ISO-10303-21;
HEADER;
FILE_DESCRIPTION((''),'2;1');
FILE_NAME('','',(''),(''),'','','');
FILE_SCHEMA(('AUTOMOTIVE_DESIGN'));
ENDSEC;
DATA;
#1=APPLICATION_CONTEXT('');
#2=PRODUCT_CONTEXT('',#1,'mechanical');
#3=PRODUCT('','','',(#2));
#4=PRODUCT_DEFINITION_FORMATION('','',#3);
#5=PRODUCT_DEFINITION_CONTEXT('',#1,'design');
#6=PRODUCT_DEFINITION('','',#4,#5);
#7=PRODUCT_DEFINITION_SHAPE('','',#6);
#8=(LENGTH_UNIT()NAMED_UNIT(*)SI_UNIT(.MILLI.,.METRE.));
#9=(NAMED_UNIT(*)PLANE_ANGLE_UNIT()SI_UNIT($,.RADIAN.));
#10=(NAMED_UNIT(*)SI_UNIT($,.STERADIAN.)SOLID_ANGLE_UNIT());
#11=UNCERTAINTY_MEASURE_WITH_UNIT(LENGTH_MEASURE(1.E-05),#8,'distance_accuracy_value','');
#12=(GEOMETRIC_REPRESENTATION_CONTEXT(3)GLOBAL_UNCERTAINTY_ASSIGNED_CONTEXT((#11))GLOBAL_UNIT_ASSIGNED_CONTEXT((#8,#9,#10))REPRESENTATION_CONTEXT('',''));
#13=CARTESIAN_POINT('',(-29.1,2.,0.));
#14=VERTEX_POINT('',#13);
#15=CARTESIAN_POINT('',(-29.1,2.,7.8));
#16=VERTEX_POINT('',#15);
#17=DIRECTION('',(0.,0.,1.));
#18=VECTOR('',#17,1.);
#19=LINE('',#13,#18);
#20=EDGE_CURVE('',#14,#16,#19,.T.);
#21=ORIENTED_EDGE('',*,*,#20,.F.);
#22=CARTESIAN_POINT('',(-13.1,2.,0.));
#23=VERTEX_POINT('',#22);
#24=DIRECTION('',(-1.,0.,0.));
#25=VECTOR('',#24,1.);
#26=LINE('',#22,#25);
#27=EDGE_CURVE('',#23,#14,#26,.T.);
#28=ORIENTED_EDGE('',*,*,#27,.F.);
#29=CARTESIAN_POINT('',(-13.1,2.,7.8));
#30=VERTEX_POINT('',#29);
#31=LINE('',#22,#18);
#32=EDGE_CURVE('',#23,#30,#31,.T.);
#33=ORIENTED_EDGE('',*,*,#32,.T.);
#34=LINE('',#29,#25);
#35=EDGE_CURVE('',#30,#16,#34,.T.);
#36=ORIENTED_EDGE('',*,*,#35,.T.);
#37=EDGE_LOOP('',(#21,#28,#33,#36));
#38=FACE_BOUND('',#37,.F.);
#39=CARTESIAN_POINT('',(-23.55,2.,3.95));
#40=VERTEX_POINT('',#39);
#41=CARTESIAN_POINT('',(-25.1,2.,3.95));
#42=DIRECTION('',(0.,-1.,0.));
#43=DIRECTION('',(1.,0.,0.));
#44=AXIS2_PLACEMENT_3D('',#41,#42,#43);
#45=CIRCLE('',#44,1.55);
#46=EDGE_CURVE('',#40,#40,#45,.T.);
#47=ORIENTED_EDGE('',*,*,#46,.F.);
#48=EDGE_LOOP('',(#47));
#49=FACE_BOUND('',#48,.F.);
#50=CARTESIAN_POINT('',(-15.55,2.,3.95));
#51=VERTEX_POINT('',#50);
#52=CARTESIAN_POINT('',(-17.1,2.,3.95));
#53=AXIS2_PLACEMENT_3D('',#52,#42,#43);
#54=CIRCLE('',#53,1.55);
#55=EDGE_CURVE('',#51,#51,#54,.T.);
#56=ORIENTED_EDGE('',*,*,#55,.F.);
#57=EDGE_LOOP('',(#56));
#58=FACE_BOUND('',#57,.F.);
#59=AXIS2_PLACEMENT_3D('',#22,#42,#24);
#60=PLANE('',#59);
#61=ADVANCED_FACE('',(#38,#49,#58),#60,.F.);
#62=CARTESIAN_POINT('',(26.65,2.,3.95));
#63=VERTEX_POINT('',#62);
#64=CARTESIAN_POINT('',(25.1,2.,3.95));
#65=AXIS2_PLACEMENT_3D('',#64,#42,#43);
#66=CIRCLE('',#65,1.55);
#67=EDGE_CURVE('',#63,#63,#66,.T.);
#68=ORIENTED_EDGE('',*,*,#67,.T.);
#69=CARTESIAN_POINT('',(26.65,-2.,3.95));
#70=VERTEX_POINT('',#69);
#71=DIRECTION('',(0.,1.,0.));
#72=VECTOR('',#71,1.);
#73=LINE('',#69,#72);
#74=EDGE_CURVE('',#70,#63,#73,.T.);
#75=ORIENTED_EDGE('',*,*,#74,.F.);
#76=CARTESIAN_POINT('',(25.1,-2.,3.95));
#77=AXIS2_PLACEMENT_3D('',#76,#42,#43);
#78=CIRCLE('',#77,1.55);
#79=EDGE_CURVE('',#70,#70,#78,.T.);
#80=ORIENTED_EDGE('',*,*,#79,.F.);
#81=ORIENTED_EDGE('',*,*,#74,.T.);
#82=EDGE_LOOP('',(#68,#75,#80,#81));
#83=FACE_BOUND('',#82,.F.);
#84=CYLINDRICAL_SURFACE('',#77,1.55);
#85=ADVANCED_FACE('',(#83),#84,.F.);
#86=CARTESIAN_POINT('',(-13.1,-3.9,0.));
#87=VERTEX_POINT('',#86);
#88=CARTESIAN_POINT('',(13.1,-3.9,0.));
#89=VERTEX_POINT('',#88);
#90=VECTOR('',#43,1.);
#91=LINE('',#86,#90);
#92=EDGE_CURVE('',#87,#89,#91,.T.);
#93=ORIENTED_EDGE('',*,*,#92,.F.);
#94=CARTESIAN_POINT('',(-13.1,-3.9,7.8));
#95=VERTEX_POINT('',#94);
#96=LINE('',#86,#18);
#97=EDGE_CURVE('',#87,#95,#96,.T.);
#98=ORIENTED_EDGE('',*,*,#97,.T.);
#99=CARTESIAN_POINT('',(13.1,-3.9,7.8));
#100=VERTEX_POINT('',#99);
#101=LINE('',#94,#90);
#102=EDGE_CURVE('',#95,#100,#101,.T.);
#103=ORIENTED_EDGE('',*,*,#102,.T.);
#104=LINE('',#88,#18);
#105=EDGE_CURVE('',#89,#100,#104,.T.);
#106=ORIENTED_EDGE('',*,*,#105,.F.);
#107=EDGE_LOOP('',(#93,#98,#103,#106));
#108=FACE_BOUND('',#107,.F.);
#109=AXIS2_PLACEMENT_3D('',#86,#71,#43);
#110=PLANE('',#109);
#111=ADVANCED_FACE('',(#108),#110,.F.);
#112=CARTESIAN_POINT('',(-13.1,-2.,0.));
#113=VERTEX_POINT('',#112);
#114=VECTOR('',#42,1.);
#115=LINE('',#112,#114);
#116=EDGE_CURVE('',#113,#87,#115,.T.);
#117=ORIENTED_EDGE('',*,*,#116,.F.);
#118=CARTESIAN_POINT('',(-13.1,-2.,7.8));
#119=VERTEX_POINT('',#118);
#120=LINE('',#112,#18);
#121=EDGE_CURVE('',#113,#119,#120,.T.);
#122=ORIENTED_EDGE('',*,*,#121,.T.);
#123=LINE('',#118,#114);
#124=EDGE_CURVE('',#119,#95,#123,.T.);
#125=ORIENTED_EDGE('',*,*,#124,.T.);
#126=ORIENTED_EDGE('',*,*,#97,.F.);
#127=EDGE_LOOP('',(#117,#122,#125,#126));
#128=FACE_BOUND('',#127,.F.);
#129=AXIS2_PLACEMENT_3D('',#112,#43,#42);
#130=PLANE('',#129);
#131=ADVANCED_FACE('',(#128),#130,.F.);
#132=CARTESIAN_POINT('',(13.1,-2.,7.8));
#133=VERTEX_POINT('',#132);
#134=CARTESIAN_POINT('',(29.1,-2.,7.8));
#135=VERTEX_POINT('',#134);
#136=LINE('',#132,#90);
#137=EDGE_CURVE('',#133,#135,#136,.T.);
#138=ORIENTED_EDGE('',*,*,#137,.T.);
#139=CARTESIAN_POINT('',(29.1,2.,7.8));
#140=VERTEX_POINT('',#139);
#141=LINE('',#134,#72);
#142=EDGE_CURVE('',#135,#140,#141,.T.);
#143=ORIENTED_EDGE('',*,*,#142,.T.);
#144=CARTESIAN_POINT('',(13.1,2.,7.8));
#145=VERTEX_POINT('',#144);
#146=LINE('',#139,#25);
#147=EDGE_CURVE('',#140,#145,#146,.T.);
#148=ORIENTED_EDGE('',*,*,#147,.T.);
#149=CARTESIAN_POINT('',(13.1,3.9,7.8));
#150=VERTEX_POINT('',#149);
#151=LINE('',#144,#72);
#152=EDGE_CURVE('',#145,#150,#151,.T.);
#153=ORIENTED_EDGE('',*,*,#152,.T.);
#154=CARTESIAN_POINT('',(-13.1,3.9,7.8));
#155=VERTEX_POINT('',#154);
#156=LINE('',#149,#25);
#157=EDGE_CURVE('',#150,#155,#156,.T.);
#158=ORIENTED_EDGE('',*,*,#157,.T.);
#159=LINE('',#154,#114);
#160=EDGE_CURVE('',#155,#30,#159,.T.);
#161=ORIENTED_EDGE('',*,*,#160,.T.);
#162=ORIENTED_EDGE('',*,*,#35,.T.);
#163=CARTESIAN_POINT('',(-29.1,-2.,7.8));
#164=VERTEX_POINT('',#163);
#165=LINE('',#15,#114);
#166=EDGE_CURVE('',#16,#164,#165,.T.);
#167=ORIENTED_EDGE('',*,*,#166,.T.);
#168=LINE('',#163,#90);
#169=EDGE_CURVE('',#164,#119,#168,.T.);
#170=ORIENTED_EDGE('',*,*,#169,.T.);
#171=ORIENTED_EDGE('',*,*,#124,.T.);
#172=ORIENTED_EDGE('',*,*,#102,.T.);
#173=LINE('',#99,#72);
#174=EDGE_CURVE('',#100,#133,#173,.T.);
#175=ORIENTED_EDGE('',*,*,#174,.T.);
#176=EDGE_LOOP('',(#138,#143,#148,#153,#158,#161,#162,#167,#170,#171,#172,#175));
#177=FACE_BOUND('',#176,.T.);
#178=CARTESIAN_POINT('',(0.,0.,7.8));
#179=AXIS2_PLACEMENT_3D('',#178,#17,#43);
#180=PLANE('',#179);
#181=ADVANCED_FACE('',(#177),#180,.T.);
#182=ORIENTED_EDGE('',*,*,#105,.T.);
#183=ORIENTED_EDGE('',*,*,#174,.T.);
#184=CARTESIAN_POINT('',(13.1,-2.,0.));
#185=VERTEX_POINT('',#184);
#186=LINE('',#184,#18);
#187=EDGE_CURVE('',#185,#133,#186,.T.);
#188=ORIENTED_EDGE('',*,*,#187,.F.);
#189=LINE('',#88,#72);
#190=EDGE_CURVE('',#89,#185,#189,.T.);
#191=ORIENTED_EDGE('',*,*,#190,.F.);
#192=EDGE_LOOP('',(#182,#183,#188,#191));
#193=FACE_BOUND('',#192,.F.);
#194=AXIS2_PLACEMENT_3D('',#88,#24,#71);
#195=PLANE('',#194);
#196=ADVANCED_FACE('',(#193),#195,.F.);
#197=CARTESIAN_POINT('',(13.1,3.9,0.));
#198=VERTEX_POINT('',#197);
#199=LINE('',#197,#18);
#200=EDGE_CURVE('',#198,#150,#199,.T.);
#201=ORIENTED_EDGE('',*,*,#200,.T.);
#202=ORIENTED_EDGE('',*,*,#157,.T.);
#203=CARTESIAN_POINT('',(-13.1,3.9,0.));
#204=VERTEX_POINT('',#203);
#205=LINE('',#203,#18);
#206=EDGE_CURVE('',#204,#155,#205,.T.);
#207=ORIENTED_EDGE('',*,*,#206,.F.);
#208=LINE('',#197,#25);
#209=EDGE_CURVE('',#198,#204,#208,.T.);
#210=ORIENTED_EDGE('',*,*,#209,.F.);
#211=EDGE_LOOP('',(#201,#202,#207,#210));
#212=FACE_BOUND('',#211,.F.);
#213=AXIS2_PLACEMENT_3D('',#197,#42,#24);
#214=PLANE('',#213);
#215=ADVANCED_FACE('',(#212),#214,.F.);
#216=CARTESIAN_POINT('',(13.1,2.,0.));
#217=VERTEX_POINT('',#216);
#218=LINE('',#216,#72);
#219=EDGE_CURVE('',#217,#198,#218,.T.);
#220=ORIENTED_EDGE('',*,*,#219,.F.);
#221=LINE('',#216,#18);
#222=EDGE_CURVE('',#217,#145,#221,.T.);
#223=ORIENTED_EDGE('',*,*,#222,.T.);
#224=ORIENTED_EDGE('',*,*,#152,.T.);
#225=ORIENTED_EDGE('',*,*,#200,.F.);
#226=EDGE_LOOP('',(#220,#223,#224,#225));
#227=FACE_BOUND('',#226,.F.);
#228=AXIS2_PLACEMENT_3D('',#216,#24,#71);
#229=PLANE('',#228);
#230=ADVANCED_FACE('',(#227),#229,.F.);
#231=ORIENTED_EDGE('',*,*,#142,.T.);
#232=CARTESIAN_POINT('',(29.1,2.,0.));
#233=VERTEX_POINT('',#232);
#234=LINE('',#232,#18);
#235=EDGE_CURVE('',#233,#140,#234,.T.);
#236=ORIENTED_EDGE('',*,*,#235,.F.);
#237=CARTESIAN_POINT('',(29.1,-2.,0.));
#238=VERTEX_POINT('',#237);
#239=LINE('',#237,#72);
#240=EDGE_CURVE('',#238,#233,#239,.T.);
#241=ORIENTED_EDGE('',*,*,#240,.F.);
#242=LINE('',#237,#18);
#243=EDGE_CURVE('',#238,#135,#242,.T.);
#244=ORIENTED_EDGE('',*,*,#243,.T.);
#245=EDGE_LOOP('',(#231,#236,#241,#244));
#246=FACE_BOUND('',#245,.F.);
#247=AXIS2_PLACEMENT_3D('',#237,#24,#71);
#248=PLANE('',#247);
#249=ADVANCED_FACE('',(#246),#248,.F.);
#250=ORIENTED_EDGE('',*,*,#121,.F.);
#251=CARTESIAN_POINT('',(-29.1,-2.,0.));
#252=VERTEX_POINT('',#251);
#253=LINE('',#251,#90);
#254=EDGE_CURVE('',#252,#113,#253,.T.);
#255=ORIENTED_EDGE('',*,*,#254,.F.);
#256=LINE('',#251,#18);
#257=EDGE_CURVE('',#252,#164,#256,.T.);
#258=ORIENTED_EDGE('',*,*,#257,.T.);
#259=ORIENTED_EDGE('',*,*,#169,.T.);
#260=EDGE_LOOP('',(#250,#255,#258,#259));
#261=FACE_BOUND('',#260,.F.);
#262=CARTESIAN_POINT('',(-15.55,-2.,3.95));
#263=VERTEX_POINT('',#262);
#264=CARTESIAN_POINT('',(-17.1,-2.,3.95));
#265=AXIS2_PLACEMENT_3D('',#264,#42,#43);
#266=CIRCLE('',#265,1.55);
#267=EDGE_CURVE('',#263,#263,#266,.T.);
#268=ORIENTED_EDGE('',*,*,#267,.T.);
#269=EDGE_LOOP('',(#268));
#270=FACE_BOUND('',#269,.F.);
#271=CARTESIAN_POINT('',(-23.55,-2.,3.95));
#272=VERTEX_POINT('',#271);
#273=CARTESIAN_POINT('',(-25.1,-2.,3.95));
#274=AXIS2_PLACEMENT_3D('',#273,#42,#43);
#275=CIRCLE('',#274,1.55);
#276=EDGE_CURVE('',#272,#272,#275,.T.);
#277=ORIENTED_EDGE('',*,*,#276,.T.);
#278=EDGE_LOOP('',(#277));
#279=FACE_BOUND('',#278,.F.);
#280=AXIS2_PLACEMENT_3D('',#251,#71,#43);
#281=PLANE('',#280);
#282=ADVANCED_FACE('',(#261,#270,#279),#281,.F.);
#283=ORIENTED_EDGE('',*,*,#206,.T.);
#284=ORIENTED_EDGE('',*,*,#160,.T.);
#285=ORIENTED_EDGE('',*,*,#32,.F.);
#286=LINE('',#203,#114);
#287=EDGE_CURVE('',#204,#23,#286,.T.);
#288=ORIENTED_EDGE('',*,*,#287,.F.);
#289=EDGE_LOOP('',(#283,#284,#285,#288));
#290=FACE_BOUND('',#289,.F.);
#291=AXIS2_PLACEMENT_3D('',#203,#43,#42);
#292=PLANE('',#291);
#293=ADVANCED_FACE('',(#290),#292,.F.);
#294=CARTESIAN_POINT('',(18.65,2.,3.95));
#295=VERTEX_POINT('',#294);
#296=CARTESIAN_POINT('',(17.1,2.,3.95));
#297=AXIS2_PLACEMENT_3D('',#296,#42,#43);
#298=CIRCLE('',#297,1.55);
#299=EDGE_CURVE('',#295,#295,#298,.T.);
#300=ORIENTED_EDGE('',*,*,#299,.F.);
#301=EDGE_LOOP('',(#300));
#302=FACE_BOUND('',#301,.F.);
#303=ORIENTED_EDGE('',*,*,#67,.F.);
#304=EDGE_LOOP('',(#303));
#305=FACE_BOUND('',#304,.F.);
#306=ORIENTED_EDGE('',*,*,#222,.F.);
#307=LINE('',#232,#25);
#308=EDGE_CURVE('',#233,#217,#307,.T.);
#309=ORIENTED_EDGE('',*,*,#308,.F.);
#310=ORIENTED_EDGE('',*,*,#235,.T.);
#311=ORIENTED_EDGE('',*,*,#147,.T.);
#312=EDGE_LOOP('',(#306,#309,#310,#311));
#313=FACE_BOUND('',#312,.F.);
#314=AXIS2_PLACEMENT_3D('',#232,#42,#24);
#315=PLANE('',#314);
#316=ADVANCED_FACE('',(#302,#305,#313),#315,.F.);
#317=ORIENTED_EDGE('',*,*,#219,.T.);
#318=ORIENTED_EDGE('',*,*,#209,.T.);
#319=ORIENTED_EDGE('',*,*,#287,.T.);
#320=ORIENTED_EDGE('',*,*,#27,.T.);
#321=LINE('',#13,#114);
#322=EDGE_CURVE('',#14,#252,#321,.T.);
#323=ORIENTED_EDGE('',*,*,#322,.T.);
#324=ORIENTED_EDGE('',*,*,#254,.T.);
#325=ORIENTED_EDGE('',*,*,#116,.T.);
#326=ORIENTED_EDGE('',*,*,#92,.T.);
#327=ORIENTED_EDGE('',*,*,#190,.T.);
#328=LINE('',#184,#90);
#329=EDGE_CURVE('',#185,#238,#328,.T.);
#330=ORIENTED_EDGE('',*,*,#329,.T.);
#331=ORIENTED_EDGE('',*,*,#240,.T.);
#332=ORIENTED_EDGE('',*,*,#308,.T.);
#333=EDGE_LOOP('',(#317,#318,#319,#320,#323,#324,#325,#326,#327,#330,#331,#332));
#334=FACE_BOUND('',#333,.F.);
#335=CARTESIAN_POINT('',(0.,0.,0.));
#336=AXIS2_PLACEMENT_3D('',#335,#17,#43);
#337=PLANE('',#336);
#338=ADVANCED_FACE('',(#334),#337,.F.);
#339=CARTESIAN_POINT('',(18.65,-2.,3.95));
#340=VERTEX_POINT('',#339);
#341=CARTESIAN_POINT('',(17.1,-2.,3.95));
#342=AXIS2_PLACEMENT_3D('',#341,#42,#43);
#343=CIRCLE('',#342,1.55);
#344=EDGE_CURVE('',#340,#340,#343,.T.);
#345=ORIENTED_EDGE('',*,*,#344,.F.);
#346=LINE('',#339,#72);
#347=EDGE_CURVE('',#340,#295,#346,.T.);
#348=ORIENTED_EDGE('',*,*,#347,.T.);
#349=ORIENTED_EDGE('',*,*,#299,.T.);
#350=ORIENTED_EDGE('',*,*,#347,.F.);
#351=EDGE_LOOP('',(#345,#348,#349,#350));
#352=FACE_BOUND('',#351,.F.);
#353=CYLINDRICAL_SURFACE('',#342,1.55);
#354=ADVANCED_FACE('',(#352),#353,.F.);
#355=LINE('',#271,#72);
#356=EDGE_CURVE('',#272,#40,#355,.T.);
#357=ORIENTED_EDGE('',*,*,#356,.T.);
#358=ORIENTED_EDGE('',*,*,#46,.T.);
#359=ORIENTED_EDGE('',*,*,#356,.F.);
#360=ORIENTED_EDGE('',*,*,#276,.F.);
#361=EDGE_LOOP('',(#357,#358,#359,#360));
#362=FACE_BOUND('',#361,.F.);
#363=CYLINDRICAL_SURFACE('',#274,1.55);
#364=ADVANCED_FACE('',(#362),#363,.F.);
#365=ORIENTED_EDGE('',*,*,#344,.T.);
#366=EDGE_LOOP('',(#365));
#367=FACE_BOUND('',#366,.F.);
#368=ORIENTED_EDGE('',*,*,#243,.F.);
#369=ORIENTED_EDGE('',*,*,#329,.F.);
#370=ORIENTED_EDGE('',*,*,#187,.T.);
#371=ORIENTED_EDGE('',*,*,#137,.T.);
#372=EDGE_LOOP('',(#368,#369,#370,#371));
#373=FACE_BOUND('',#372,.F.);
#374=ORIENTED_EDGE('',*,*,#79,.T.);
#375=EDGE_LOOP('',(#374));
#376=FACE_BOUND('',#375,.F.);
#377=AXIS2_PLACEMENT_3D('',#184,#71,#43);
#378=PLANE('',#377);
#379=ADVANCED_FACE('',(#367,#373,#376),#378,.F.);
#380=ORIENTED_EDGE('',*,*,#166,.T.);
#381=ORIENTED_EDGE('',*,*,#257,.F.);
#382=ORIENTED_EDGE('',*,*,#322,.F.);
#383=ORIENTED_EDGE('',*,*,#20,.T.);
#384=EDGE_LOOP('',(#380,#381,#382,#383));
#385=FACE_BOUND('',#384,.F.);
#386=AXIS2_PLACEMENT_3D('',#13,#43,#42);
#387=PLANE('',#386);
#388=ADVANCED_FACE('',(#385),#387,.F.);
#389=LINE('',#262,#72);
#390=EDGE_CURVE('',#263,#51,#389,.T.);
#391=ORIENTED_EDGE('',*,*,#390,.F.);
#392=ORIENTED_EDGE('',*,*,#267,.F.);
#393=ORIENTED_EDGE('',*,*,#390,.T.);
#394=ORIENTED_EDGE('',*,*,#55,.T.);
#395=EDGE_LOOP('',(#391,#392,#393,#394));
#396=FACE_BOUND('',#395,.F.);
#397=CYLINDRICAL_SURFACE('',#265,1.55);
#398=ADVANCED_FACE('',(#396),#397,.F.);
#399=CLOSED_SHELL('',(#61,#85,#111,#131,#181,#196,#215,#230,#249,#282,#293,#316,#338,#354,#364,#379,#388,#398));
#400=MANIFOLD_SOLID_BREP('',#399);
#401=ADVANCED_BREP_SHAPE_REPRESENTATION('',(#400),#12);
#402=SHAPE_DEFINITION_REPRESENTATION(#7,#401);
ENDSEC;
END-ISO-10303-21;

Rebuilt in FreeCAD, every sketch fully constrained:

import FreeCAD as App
import Part
import Sketcher

V = App.Vector
Q = App.Units.Quantity


def add_polygon(sketch, points):
    """Adds a closed chain of lines whose ends are joined by coincident constraints."""
    first, n = sketch.GeometryCount, len(points)
    for a, b in zip(points, points[1:] + points[:1]):
        sketch.addGeometry(Part.LineSegment(App.Vector(*a, 0), App.Vector(*b, 0)), False)
    for i in range(n):
        sketch.addConstraint(Sketcher.Constraint("Coincident", first + i, 2, first + (i + 1) % n, 1))

doc = App.newDocument("Part")
body = doc.addObject("PartDesign::Body", "Body")

# Sketch on XY plane
sketch1 = body.newObject("Sketcher::SketchObject", "Sketch")
sketch1.AttachmentSupport = (doc.getObject("XY_Plane"), [""])
sketch1.MapMode = "FlatFace"
add_polygon(sketch1, [(29.1, -2), (29.1, 2), (13.1, 2), (13.1, 3.9), (-13.1, 3.9), (-13.1, 2), (-29.1, 2), (-29.1, -2), (-13.1, -2), (-13.1, -3.9), (13.1, -3.9), (13.1, -2)])  # lines 0-11
sketch1.addConstraint([
    Sketcher.Constraint("Vertical", 0),
    Sketcher.Constraint("Horizontal", 1),
    Sketcher.Constraint("Vertical", 2),
    Sketcher.Constraint("Horizontal", 3),
    Sketcher.Constraint("Vertical", 4),
    Sketcher.Constraint("Horizontal", 5),
    Sketcher.Constraint("Vertical", 6),
    Sketcher.Constraint("Horizontal", 7),
    Sketcher.Constraint("Vertical", 8),
    Sketcher.Constraint("Horizontal", 9),
    Sketcher.Constraint("Vertical", 10),
    Sketcher.Constraint("Horizontal", 11),
    Sketcher.Constraint("Symmetric", 0, 2, 6, 2, -1, 1),
    Sketcher.Constraint("Symmetric", 2, 2, 8, 2, -1, 1),
    Sketcher.Constraint("Symmetric", 4, 2, 10, 2, -1, 1),
    Sketcher.Constraint("Symmetric", 1, 2, 4, 2, -2),
    Sketcher.Constraint("DistanceX", 1, 2, 1, 1, Q("16 mm")),
    Sketcher.Constraint("DistanceY", 0, 1, 0, 2, Q("4 mm")),
    Sketcher.Constraint("DistanceX", 3, 2, 3, 1, Q("26.2 mm")),
    Sketcher.Constraint("DistanceY", 2, 1, 2, 2, Q("1.9 mm")),
])
pad1 = body.newObject("PartDesign::Pad", "Pad")
pad1.Profile = sketch1
pad1.Length = 7.8

# Sketch on XZ plane
sketch2 = body.newObject("Sketcher::SketchObject", "Sketch001")
sketch2.AttachmentSupport = (doc.getObject("XZ_Plane"), [""])
sketch2.MapMode = "FlatFace"
sketch2.AttachmentOffset = App.Placement(V(0, 0, 2), App.Rotation())
sketch2.addGeometry([
    Part.Circle(V(-25.1, 4, 0), V(0, 0, 1), 1.6),
    Part.Circle(V(-17.1, 4, 0), V(0, 0, 1), 1.6),
    Part.Circle(V(17.1, 4, 0), V(0, 0, 1), 1.6),
    Part.Circle(V(25.1, 4, 0), V(0, 0, 1), 1.6),
], False)
sketch2.addConstraint([
    Sketcher.Constraint("Equal", 0, 1),
    Sketcher.Constraint("Equal", 1, 2),
    Sketcher.Constraint("Equal", 2, 3),
    Sketcher.Constraint("Symmetric", 1, 3, 2, 3, -2),
    Sketcher.Constraint("Symmetric", 0, 3, 3, 3, -2),
    Sketcher.Constraint("Horizontal", 0, 3, 1, 3),
    Sketcher.Constraint("Diameter", 0, Q("3.1 mm")),
    Sketcher.Constraint("DistanceX", 0, 3, 1, 3, Q("8 mm")),
    Sketcher.Constraint("DistanceX", 0, 3, -1, 1, Q("25.1 mm")),
    Sketcher.Constraint("DistanceY", -1, 1, 0, 3, Q("3.95 mm")),
])
pocket1 = body.newObject("PartDesign::Pocket", "Pocket")
pocket1.Profile = sketch2
pocket1.Type = "ThroughAll"

# Sketch on XZ plane
sketch3 = body.newObject("Sketcher::SketchObject", "Sketch002")
sketch3.AttachmentSupport = (doc.getObject("XZ_Plane"), [""])
sketch3.MapMode = "FlatFace"
sketch3.AttachmentOffset = App.Placement(V(0, 0, 2), App.Rotation())
sketch3.addGeometry([
    Part.Circle(V(-25.1, 4, 0), V(0, 0, 1), 1.6),
    Part.Circle(V(-17.1, 4, 0), V(0, 0, 1), 1.6),
    Part.Circle(V(17.1, 4, 0), V(0, 0, 1), 1.6),
    Part.Circle(V(25.1, 4, 0), V(0, 0, 1), 1.6),
], False)
sketch3.addConstraint([
    Sketcher.Constraint("Equal", 0, 1),
    Sketcher.Constraint("Equal", 1, 2),
    Sketcher.Constraint("Equal", 2, 3),
    Sketcher.Constraint("Symmetric", 1, 3, 2, 3, -2),
    Sketcher.Constraint("Symmetric", 0, 3, 3, 3, -2),
    Sketcher.Constraint("Horizontal", 0, 3, 1, 3),
    Sketcher.Constraint("Diameter", 0, Q("3.1 mm")),
    Sketcher.Constraint("DistanceX", 0, 3, 1, 3, Q("8 mm")),
    Sketcher.Constraint("DistanceX", 0, 3, -1, 1, Q("25.1 mm")),
    Sketcher.Constraint("DistanceY", -1, 1, 0, 3, Q("3.95 mm")),
])
pocket2 = body.newObject("PartDesign::Pocket", "Pocket001")
pocket2.Profile = sketch3
pocket2.Type = "ThroughAll"

doc.recompute()
